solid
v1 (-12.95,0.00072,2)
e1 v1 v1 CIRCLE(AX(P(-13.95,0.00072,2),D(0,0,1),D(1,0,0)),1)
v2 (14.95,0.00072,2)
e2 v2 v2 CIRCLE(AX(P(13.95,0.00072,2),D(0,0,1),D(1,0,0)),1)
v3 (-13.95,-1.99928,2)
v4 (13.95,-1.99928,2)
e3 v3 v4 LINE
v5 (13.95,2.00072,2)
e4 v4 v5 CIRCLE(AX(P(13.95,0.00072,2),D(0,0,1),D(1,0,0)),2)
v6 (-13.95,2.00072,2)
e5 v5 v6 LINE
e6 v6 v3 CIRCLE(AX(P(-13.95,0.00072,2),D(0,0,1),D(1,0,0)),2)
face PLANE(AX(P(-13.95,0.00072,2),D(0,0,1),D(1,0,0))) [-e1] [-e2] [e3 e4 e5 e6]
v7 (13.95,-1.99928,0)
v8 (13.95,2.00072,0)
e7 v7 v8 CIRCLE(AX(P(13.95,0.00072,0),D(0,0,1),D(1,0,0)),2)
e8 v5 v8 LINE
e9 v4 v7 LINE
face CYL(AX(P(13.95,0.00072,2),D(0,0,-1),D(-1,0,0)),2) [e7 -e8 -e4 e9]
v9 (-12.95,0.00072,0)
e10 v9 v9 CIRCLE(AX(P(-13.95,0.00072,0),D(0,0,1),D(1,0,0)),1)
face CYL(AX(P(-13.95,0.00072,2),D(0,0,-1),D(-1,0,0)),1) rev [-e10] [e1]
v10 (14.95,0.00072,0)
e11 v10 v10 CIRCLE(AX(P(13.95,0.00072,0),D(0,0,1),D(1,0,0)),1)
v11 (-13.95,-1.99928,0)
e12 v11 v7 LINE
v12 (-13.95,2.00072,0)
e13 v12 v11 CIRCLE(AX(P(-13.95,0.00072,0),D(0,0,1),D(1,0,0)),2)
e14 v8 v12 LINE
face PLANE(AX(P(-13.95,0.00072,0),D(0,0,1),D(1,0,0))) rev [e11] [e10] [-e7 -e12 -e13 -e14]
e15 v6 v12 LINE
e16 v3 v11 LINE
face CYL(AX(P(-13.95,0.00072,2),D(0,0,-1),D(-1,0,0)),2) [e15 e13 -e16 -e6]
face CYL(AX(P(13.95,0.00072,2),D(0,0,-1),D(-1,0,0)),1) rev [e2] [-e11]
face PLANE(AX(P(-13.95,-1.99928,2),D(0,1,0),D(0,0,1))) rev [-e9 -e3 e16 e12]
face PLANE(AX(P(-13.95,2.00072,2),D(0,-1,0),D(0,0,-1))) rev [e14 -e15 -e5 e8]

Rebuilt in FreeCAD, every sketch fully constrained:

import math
import FreeCAD as App
import Part
import Sketcher

V = App.Vector
Q = App.Units.Quantity

doc = App.newDocument("Part")
params = doc.addObject("Spreadsheet::Sheet", "Params")
for row, (alias, value) in enumerate([
    ("sketch1_diameter", "2 mm"),
    ("sketch1_radius", "2 mm"),
    ("sketch1_width", "27.9 mm"),
    ("pad1_length", "2 mm"),
], start=1):
    params.set(f"A{row}", alias)
    params.set(f"B{row}", "=" + value)
    params.setAlias(f"B{row}", alias)

body = doc.addObject("PartDesign::Body", "Body")

sketch1 = body.newObject("Sketcher::SketchObject", "Sketch")
sketch1.AttachmentSupport = (doc.getObject("XY_Plane"), [""])
sketch1.MapMode = "FlatFace"
sketch1.addGeometry([
    Part.LineSegment(V(14, 2, 0), V(-13.9, 2, 0)),
    Part.ArcOfCircle(Part.Circle(V(-13.9, 0, 0), V(0, 0, 1), 2), math.radians(90), math.radians(270)),
    Part.LineSegment(V(-13.9, -2, 0), V(14, -2, 0)),
    Part.ArcOfCircle(Part.Circle(V(14, 0, 0), V(0, 0, 1), 2), math.radians(-90), math.radians(90)),
    Part.Circle(V(14, 0, 0), V(0, 0, 1), 1),
    Part.Circle(V(-13.9, 0, 0), V(0, 0, 1), 1),
], False)
sketch1.addConstraint([
    Sketcher.Constraint("Tangent", 0, 2, 1, 1),
    Sketcher.Constraint("Tangent", 1, 2, 2, 1),
    Sketcher.Constraint("Tangent", 2, 2, 3, 1),
    Sketcher.Constraint("Tangent", 3, 2, 0, 1),
    Sketcher.Constraint("Horizontal", 0),
    Sketcher.Constraint("Horizontal", 2),
    Sketcher.Constraint("Coincident", 4, 3, 3, 3),
    Sketcher.Constraint("Coincident", 5, 3, 1, 3),
    Sketcher.Constraint("Equal", 4, 5),
    Sketcher.Constraint("Diameter", 4, Q("2 mm")),
    Sketcher.Constraint("Radius", 1, Q("2 mm")),
    Sketcher.Constraint("DistanceX", 0, 2, 0, 1, Q("27.9 mm")),
    Sketcher.Constraint("DistanceX", 1, 3, -1, 1, Q("13.95 mm")),
    Sketcher.Constraint("DistanceY", -1, 1, 1, 3, Q("0.00072 mm")),
])
sketch1.setExpression("Constraints[9]", "Params.sketch1_diameter")
sketch1.setExpression("Constraints[10]", "Params.sketch1_radius")
sketch1.setExpression("Constraints[11]", "Params.sketch1_width")
pad1 = body.newObject("PartDesign::Pad", "Pad")
pad1.Profile = sketch1
pad1.setExpression("Length", "Params.pad1_length")

doc.recompute()
